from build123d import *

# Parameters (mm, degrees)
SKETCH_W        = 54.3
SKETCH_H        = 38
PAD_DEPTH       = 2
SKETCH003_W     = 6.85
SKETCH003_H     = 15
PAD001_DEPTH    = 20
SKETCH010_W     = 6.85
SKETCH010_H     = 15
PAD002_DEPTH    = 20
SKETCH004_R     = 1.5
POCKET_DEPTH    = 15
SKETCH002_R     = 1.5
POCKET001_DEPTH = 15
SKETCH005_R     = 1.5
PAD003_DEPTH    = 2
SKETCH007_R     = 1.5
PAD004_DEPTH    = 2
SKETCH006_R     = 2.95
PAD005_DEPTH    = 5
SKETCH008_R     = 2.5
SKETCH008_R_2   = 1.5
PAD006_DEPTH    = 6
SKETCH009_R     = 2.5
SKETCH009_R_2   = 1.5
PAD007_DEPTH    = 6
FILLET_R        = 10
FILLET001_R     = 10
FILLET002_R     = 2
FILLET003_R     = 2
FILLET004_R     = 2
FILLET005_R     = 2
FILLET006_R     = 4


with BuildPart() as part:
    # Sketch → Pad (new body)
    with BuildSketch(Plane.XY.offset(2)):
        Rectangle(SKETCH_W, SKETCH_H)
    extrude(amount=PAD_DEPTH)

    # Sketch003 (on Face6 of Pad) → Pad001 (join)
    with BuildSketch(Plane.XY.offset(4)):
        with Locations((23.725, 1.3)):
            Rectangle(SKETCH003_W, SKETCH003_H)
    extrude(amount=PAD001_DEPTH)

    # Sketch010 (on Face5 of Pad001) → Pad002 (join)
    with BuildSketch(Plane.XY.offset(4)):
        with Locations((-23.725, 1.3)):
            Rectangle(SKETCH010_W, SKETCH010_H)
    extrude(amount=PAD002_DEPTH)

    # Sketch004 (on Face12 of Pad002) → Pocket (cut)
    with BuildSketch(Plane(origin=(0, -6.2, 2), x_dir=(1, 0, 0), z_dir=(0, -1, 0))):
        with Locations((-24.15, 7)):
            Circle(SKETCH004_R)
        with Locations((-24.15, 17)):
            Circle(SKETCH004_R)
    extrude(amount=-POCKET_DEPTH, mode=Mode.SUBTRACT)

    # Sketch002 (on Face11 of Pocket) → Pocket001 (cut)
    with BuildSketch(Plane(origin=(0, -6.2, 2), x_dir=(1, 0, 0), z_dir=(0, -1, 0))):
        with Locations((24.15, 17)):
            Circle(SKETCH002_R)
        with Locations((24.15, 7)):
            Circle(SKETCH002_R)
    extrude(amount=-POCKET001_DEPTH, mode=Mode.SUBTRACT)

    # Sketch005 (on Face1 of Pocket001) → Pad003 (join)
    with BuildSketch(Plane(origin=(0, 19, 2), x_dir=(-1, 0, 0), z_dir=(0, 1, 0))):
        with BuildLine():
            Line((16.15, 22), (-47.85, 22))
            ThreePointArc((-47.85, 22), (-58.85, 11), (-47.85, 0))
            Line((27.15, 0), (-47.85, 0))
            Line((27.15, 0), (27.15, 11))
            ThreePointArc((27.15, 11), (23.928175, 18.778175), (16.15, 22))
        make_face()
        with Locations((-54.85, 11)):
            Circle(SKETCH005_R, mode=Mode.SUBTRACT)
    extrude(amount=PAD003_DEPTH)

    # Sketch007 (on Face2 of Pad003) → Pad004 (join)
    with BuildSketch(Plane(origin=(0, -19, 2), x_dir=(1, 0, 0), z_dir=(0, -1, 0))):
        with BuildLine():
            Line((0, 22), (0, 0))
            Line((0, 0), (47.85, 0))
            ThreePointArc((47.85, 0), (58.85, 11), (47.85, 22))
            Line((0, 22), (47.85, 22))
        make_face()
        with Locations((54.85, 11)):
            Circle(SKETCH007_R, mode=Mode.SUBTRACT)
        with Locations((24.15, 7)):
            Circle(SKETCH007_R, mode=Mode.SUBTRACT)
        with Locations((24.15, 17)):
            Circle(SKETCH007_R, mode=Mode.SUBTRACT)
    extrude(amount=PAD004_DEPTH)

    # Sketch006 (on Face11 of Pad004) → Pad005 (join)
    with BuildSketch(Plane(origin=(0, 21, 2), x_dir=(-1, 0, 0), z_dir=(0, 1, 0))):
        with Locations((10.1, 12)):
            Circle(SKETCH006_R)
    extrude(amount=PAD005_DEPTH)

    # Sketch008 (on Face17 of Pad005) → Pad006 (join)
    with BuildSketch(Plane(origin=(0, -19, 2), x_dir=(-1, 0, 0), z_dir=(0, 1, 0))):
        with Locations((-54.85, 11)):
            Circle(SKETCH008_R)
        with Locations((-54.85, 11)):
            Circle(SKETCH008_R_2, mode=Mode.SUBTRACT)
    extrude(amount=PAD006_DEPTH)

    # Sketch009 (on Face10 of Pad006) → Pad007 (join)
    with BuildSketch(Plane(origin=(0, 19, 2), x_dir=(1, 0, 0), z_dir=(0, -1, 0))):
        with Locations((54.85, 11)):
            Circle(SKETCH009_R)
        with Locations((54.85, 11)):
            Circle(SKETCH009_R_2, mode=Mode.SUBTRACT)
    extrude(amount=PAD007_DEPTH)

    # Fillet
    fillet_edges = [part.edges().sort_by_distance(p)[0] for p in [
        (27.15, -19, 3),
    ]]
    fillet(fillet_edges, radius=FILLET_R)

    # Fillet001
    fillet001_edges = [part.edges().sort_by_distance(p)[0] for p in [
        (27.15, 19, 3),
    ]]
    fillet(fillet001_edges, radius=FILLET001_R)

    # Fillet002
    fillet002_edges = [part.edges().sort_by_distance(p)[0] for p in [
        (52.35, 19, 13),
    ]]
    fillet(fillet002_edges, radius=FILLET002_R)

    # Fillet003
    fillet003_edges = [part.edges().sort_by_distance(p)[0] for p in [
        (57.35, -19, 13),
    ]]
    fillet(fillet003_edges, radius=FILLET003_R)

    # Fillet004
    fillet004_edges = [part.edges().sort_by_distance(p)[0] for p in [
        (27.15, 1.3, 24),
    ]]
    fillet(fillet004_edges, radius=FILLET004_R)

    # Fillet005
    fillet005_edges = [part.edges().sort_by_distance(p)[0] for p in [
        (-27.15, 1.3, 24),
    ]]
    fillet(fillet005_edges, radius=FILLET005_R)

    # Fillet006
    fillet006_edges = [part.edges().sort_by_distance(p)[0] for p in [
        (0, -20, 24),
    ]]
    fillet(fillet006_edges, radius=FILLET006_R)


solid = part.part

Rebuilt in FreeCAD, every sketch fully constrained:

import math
import FreeCAD as App
import Part
import Sketcher
Q = App.Units.Quantity


def edges_at(feature, points):
    """Names of the edges that pass closest to the given points."""
    edges = feature.Shape.Edges
    near = lambda p: min(range(len(edges)), key=lambda i: edges[i].distToShape(Part.Vertex(*p))[0])
    return sorted({f"Edge{near(p) + 1}" for p in points})

doc = App.newDocument("Part")
body = doc.addObject("PartDesign::Body", "Body")

# Sketch on XY plane
sketch1 = body.newObject("Sketcher::SketchObject", "Sketch")
sketch1.AttachmentSupport = (doc.getObject("XY_Plane"), [""])
sketch1.MapMode = "FlatFace"
sketch1.AttachmentOffset = App.Placement(App.Vector(0, 0, 2), App.Rotation())
sketch1.addGeometry([
    Part.LineSegment(App.Vector(-27, 19, 0), App.Vector(-27, -19, 0)),
    Part.LineSegment(App.Vector(-27, -19, 0), App.Vector(27, -19, 0)),
    Part.LineSegment(App.Vector(27, -19, 0), App.Vector(27, 19, 0)),
    Part.LineSegment(App.Vector(27, 19, 0), App.Vector(-27, 19, 0)),
], False)
sketch1.addConstraint([
    Sketcher.Constraint("Coincident", 0, 2, 1, 1),
    Sketcher.Constraint("Coincident", 1, 2, 2, 1),
    Sketcher.Constraint("Coincident", 2, 2, 3, 1),
    Sketcher.Constraint("Coincident", 3, 2, 0, 1),
    Sketcher.Constraint("Vertical", 0),
    Sketcher.Constraint("Horizontal", 1),
    Sketcher.Constraint("Vertical", 2),
    Sketcher.Constraint("Horizontal", 3),
    Sketcher.Constraint("Symmetric", 0, 2, 2, 2, -1, 1),
    Sketcher.Constraint("DistanceY", 0, 2, 0, 1, Q("38 mm")),
    Sketcher.Constraint("DistanceX", 1, 1, 1, 2, Q("54.3 mm")),
])
pad1 = body.newObject("PartDesign::Pad", "Pad")
pad1.Profile = sketch1
pad1.Length = 2

# Sketch on XY plane
sketch2 = body.newObject("Sketcher::SketchObject", "Sketch001")
sketch2.AttachmentSupport = (doc.getObject("XY_Plane"), [""])
sketch2.MapMode = "FlatFace"
sketch2.AttachmentOffset = App.Placement(App.Vector(0, 0, 4), App.Rotation())
sketch2.addGeometry([
    Part.LineSegment(App.Vector(20, 9, 0), App.Vector(20, -6, 0)),
    Part.LineSegment(App.Vector(20, -6, 0), App.Vector(27, -6, 0)),
    Part.LineSegment(App.Vector(27, -6, 0), App.Vector(27, 9, 0)),
    Part.LineSegment(App.Vector(27, 9, 0), App.Vector(20, 9, 0)),
], False)
sketch2.addConstraint([
    Sketcher.Constraint("Coincident", 0, 2, 1, 1),
    Sketcher.Constraint("Coincident", 1, 2, 2, 1),
    Sketcher.Constraint("Coincident", 2, 2, 3, 1),
    Sketcher.Constraint("Coincident", 3, 2, 0, 1),
    Sketcher.Constraint("Vertical", 0),
    Sketcher.Constraint("Horizontal", 1),
    Sketcher.Constraint("Vertical", 2),
    Sketcher.Constraint("Horizontal", 3),
    Sketcher.Constraint("DistanceY", 0, 2, 0, 1, Q("15 mm")),
    Sketcher.Constraint("DistanceX", 1, 1, 1, 2, Q("6.85 mm")),
    Sketcher.Constraint("DistanceX", -1, 1, 0, 2, Q("20.3 mm")),
    Sketcher.Constraint("DistanceY", 0, 2, -1, 1, Q("6.2 mm")),
])
pad2 = body.newObject("PartDesign::Pad", "Pad001")
pad2.Profile = sketch2
pad2.Length = 20

# Sketch on XY plane
sketch3 = body.newObject("Sketcher::SketchObject", "Sketch002")
sketch3.AttachmentSupport = (doc.getObject("XY_Plane"), [""])
sketch3.MapMode = "FlatFace"
sketch3.AttachmentOffset = App.Placement(App.Vector(0, 0, 4), App.Rotation())
sketch3.addGeometry([
    Part.LineSegment(App.Vector(-27, 9, 0), App.Vector(-27, -6, 0)),
    Part.LineSegment(App.Vector(-27, -6, 0), App.Vector(-20, -6, 0)),
    Part.LineSegment(App.Vector(-20, -6, 0), App.Vector(-20, 9, 0)),
    Part.LineSegment(App.Vector(-20, 9, 0), App.Vector(-27, 9, 0)),
], False)
sketch3.addConstraint([
    Sketcher.Constraint("Coincident", 0, 2, 1, 1),
    Sketcher.Constraint("Coincident", 1, 2, 2, 1),
    Sketcher.Constraint("Coincident", 2, 2, 3, 1),
    Sketcher.Constraint("Coincident", 3, 2, 0, 1),
    Sketcher.Constraint("Vertical", 0),
    Sketcher.Constraint("Horizontal", 1),
    Sketcher.Constraint("Vertical", 2),
    Sketcher.Constraint("Horizontal", 3),
    Sketcher.Constraint("DistanceY", 0, 2, 0, 1, Q("15 mm")),
    Sketcher.Constraint("DistanceX", 1, 1, 1, 2, Q("6.85 mm")),
    Sketcher.Constraint("DistanceY", 0, 2, -1, 1, Q("6.2 mm")),
    Sketcher.Constraint("DistanceX", 1, 2, -1, 1, Q("20.3 mm")),
])
pad3 = body.newObject("PartDesign::Pad", "Pad002")
pad3.Profile = sketch3
pad3.Length = 20

# Sketch on XZ plane
sketch4 = body.newObject("Sketcher::SketchObject", "Sketch003")
sketch4.AttachmentSupport = (doc.getObject("XZ_Plane"), [""])
sketch4.MapMode = "FlatFace"
sketch4.AttachmentOffset = App.Placement(App.Vector(0, 0, 6.2), App.Rotation())
sketch4.addGeometry([
    Part.Circle(App.Vector(-24.1, 9, 0), App.Vector(0, 0, 1), 1.5),
    Part.Circle(App.Vector(-24.1, 19, 0), App.Vector(0, 0, 1), 1.5),
], False)
sketch4.addConstraint([
    Sketcher.Constraint("Equal", 0, 1),
    Sketcher.Constraint("Vertical", 0, 3, 1, 3),
    Sketcher.Constraint("Diameter", 0, Q("3 mm")),
    Sketcher.Constraint("DistanceY", -1, 1, 0, 3, Q("9 mm")),
    Sketcher.Constraint("DistanceY", -1, 1, 1, 3, Q("19 mm")),
    Sketcher.Constraint("DistanceX", 0, 3, -1, 1, Q("24.15 mm")),
])
pocket1 = body.newObject("PartDesign::Pocket", "Pocket")
pocket1.Profile = sketch4
pocket1.Length = 15

# Sketch on XZ plane
sketch5 = body.newObject("Sketcher::SketchObject", "Sketch004")
sketch5.AttachmentSupport = (doc.getObject("XZ_Plane"), [""])
sketch5.MapMode = "FlatFace"
sketch5.AttachmentOffset = App.Placement(App.Vector(0, 0, 6.2), App.Rotation())
sketch5.addGeometry([
    Part.Circle(App.Vector(24.1, 19, 0), App.Vector(0, 0, 1), 1.5),
    Part.Circle(App.Vector(24.1, 9, 0), App.Vector(0, 0, 1), 1.5),
], False)
sketch5.addConstraint([
    Sketcher.Constraint("Equal", 0, 1),
    Sketcher.Constraint("Vertical", 0, 3, 1, 3),
    Sketcher.Constraint("Diameter", 0, Q("3 mm")),
    Sketcher.Constraint("DistanceY", -1, 1, 0, 3, Q("19 mm")),
    Sketcher.Constraint("DistanceY", -1, 1, 1, 3, Q("9 mm")),
    Sketcher.Constraint("DistanceX", -1, 1, 0, 3, Q("24.15 mm")),
])
pocket2 = body.newObject("PartDesign::Pocket", "Pocket001")
pocket2.Profile = sketch5
pocket2.Length = 15

# Sketch on XZ plane
sketch6 = body.newObject("Sketcher::SketchObject", "Sketch005")
sketch6.AttachmentSupport = (doc.getObject("XZ_Plane"), [""])
sketch6.MapMode = "FlatFace"
sketch6.AttachmentOffset = App.Placement(App.Vector(0, 0, -19), App.Rotation())
sketch6.addGeometry([
    Part.LineSegment(App.Vector(-16.1, 24, 0), App.Vector(47.9, 24, 0)),  # 0
    Part.ArcOfCircle(Part.Circle(App.Vector(47.9, 13, 0), App.Vector(0, 0, 1), 11), math.radians(-90), math.radians(90)),  # 1
    Part.LineSegment(App.Vector(47.9, 2, 0), App.Vector(-27.1, 2, 0)),  # 2
    Part.LineSegment(App.Vector(-27.1, 2, 0), App.Vector(-27.1, 13, 0)),  # 3
    Part.ArcOfCircle(Part.Circle(App.Vector(-16.2, 13, 0), App.Vector(0, 0, 1), 11), math.radians(90), math.radians(180)),  # 4
    Part.Circle(App.Vector(54.9, 13, 0), App.Vector(0, 0, 1), 1.5),  # 5
], False)
sketch6.addConstraint([
    Sketcher.Constraint("Tangent", 0, 2, 1, 2),
    Sketcher.Constraint("Tangent", 1, 1, 2, 1),
    Sketcher.Constraint("Coincident", 2, 2, 3, 1),
    Sketcher.Constraint("Tangent", 3, 2, 4, 2),
    Sketcher.Constraint("Tangent", 4, 1, 0, 1),
    Sketcher.Constraint("Horizontal", 0),
    Sketcher.Constraint("Horizontal", 2),
    Sketcher.Constraint("Vertical", 3),
    Sketcher.Constraint("Equal", 1, 4),
    Sketcher.Constraint("Horizontal", 4, 3, 5, 3),
    Sketcher.Constraint("Diameter", 5, Q("3 mm")),
    Sketcher.Constraint("Radius", 1, Q("11 mm")),
    Sketcher.Constraint("DistanceX", 0, 1, 0, 2, Q("64 mm")),
    Sketcher.Constraint("DistanceY", -1, 1, 1, 3, Q("13 mm")),
    Sketcher.Constraint("DistanceX", 1, 3, 5, 3, Q("7 mm")),
    Sketcher.Constraint("DistanceX", -1, 1, 1, 3, Q("47.85 mm")),
])
pad4 = body.newObject("PartDesign::Pad", "Pad003")
pad4.Profile = sketch6
pad4.Length = 2
pad4.Reversed = True

# Sketch on XZ plane
sketch7 = body.newObject("Sketcher::SketchObject", "Sketch006")
sketch7.AttachmentSupport = (doc.getObject("XZ_Plane"), [""])
sketch7.MapMode = "FlatFace"
sketch7.AttachmentOffset = App.Placement(App.Vector(0, 0, 19), App.Rotation())
sketch7.addGeometry([
    Part.LineSegment(App.Vector(0, 24, 0), App.Vector(0, 2, 0)),  # 0
    Part.LineSegment(App.Vector(0, 2, 0), App.Vector(47.9, 2, 0)),  # 1
    Part.ArcOfCircle(Part.Circle(App.Vector(47.9, 13, 0), App.Vector(0, 0, 1), 11), math.radians(-90), math.radians(90)),  # 2
    Part.LineSegment(App.Vector(47.9, 24, 0), App.Vector(0, 24, 0)),  # 3
    Part.Circle(App.Vector(24.1, 9, 0), App.Vector(0, 0, 1), 1.5),  # 4
    Part.Circle(App.Vector(54.9, 13, 0), App.Vector(0, 0, 1), 1.5),  # 5
    Part.Circle(App.Vector(24.1, 19, 0), App.Vector(0, 0, 1), 1.5),  # 6
], False)
sketch7.addConstraint([
    Sketcher.Constraint("Coincident", 0, 2, 1, 1),
    Sketcher.Constraint("Tangent", 1, 2, 2, 1),
    Sketcher.Constraint("Tangent", 2, 2, 3, 1),
    Sketcher.Constraint("Coincident", 3, 2, 0, 1),
    Sketcher.Constraint("Vertical", 0),
    Sketcher.Constraint("Horizontal", 1),
    Sketcher.Constraint("Horizontal", 3),
    Sketcher.Constraint("Equal", 4, 5),
    Sketcher.Constraint("Equal", 5, 6),
    Sketcher.Constraint("PointOnObject", 0, 2, -2),
    Sketcher.Constraint("Horizontal", 2, 3, 5, 3),
    Sketcher.Constraint("Vertical", 4, 3, 6, 3),
    Sketcher.Constraint("Diameter", 4, Q("3 mm")),
    Sketcher.Constraint("Radius", 2, Q("11 mm")),
    Sketcher.Constraint("DistanceY", -1, 1, 2, 3, Q("13 mm")),
    Sketcher.Constraint("DistanceY", -1, 1, 4, 3, Q("9 mm")),
    Sketcher.Constraint("DistanceY", -1, 1, 6, 3, Q("19 mm")),
    Sketcher.Constraint("DistanceX", 2, 3, 5, 3, Q("7 mm")),
    Sketcher.Constraint("DistanceX", 1, 1, 1, 2, Q("47.85 mm")),
    Sketcher.Constraint("DistanceX", 4, 3, 2, 3, Q("23.7 mm")),
])
pad5 = body.newObject("PartDesign::Pad", "Pad004")
pad5.Profile = sketch7
pad5.Length = 2

# Sketch on XZ plane
sketch8 = body.newObject("Sketcher::SketchObject", "Sketch007")
sketch8.AttachmentSupport = (doc.getObject("XZ_Plane"), [""])
sketch8.MapMode = "FlatFace"
sketch8.AttachmentOffset = App.Placement(App.Vector(0, 0, -21), App.Rotation())
sketch8.addGeometry(Part.Circle(App.Vector(-10.1, 14, 0), App.Vector(0, 0, 1), 3), False)
sketch8.addConstraint([
    Sketcher.Constraint("Diameter", 0, Q("5.9 mm")),
    Sketcher.Constraint("DistanceY", -1, 1, 0, 3, Q("14 mm")),
    Sketcher.Constraint("DistanceX", 0, 3, -1, 1, Q("10.1 mm")),
])
pad6 = body.newObject("PartDesign::Pad", "Pad005")
pad6.Profile = sketch8
pad6.Length = 5
pad6.Reversed = True

# Sketch on XZ plane
sketch9 = body.newObject("Sketcher::SketchObject", "Sketch008")
sketch9.AttachmentSupport = (doc.getObject("XZ_Plane"), [""])
sketch9.MapMode = "FlatFace"
sketch9.AttachmentOffset = App.Placement(App.Vector(0, 0, 19), App.Rotation())
sketch9.addGeometry([
    Part.Circle(App.Vector(54.9, 13, 0), App.Vector(0, 0, 1), 2.5),
    Part.Circle(App.Vector(54.9, 13, 0), App.Vector(0, 0, 1), 1.5),
], False)
sketch9.addConstraint([
    Sketcher.Constraint("Coincident", 1, 3, 0, 3),
    Sketcher.Constraint("Diameter", 0, Q("5 mm")),
    Sketcher.Constraint("Diameter", 1, Q("3 mm")),
    Sketcher.Constraint("DistanceY", -1, 1, 0, 3, Q("13 mm")),
    Sketcher.Constraint("DistanceX", -1, 1, 0, 3, Q("54.85 mm")),
])
pad7 = body.newObject("PartDesign::Pad", "Pad006")
pad7.Profile = sketch9
pad7.Length = 6
pad7.Reversed = True

# Sketch on XZ plane
sketch10 = body.newObject("Sketcher::SketchObject", "Sketch009")
sketch10.AttachmentSupport = (doc.getObject("XZ_Plane"), [""])
sketch10.MapMode = "FlatFace"
sketch10.AttachmentOffset = App.Placement(App.Vector(0, 0, -19), App.Rotation())
sketch10.addGeometry([
    Part.Circle(App.Vector(54.9, 13, 0), App.Vector(0, 0, 1), 2.5),
    Part.Circle(App.Vector(54.9, 13, 0), App.Vector(0, 0, 1), 1.5),
], False)
sketch10.addConstraint([
    Sketcher.Constraint("Coincident", 1, 3, 0, 3),
    Sketcher.Constraint("Diameter", 0, Q("5 mm")),
    Sketcher.Constraint("Diameter", 1, Q("3 mm")),
    Sketcher.Constraint("DistanceY", -1, 1, 0, 3, Q("13 mm")),
    Sketcher.Constraint("DistanceX", -1, 1, 0, 3, Q("54.85 mm")),
])
pad8 = body.newObject("PartDesign::Pad", "Pad007")
pad8.Profile = sketch10
pad8.Length = 6
doc.recompute()

fillet = body.newObject("PartDesign::Fillet", "Fillet")
fillet.Base = (pad8, edges_at(pad8, [(27.15, -19, 3)]))
fillet.Radius = 10
doc.recompute()

fillet2 = body.newObject("PartDesign::Fillet", "Fillet001")
fillet2.Base = (fillet, edges_at(fillet, [(27.15, 19, 3)]))
fillet2.Radius = 10
doc.recompute()

fillet3 = body.newObject("PartDesign::Fillet", "Fillet002")
fillet3.Base = (fillet2, edges_at(fillet2, [(52.35, 19, 13)]))
fillet3.Radius = 2
doc.recompute()

fillet4 = body.newObject("PartDesign::Fillet", "Fillet003")
fillet4.Base = (fillet3, edges_at(fillet3, [(57.35, -19, 13)]))
fillet4.Radius = 2
doc.recompute()

fillet5 = body.newObject("PartDesign::Fillet", "Fillet004")
fillet5.Base = (fillet4, edges_at(fillet4, [(27.15, 1.3, 24)]))
fillet5.Radius = 2
doc.recompute()

fillet6 = body.newObject("PartDesign::Fillet", "Fillet005")
fillet6.Base = (fillet5, edges_at(fillet5, [(-27.15, 1.3, 24)]))
fillet6.Radius = 2
doc.recompute()

fillet7 = body.newObject("PartDesign::Fillet", "Fillet006")
fillet7.Base = (fillet6, edges_at(fillet6, [(0, -20, 24)]))
fillet7.Radius = 4

doc.recompute()
